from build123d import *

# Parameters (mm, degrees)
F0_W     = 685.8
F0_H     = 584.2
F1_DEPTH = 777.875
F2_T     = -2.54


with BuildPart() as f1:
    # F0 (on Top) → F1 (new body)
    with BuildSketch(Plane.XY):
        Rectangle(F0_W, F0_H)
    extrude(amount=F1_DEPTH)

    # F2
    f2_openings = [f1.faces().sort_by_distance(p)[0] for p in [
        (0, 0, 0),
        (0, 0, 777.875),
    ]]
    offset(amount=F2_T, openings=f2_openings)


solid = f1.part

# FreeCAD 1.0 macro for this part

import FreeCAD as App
import Part
import Sketcher
from FreeCAD import Vector
Q = App.Units.Quantity


def faces_at(feature, points):
    """Names of the faces that lie closest to the given points."""
    faces = feature.Shape.Faces
    near = lambda p: min(range(len(faces)), key=lambda i: faces[i].distToShape(Part.Vertex(*p))[0])
    return sorted({f"Face{near(p) + 1}" for p in points})

doc = App.newDocument("Part")
body = doc.addObject("PartDesign::Body", "Body")

sketch1 = body.newObject("Sketcher::SketchObject", "Sketch")
sketch1.AttachmentSupport = (doc.getObject("XY_Plane"), [""])
sketch1.MapMode = "FlatFace"
sketch1.addGeometry(Part.LineSegment(Vector(-343, 292, 0), Vector(-343, -292, 0)), False)
sketch1.addGeometry(Part.LineSegment(Vector(-343, -292, 0), Vector(343, -292, 0)), False)
sketch1.addGeometry(Part.LineSegment(Vector(343, -292, 0), Vector(343, 292, 0)), False)
sketch1.addGeometry(Part.LineSegment(Vector(343, 292, 0), Vector(-343, 292, 0)), False)
sketch1.addConstraint(Sketcher.Constraint("Coincident", 0, 2, 1, 1))
sketch1.addConstraint(Sketcher.Constraint("Coincident", 1, 2, 2, 1))
sketch1.addConstraint(Sketcher.Constraint("Coincident", 2, 2, 3, 1))
sketch1.addConstraint(Sketcher.Constraint("Coincident", 3, 2, 0, 1))
sketch1.addConstraint(Sketcher.Constraint("Vertical", 0))
sketch1.addConstraint(Sketcher.Constraint("Horizontal", 1))
sketch1.addConstraint(Sketcher.Constraint("Vertical", 2))
sketch1.addConstraint(Sketcher.Constraint("Horizontal", 3))
sketch1.addConstraint(Sketcher.Constraint("Symmetric", 0, 2, 2, 2, -1, 1))
sketch1.addConstraint(Sketcher.Constraint("DistanceX", 1, 1, 1, 2, Q("27 in")))
sketch1.addConstraint(Sketcher.Constraint("DistanceY", 0, 2, 0, 1, Q("23 in")))
pad1 = body.newObject("PartDesign::Pad", "Pad")
pad1.Profile = sketch1
pad1.Length = Q("30.625 in")
doc.recompute()

thickness = body.newObject("PartDesign::Thickness", "Thickness")
thickness.Base = (pad1, faces_at(pad1, [(0, 0, 0), (0, 0, 777.875)]))
thickness.Value = Q("0.1 in")
thickness.Reversed = True
thickness.Join = "Arc"

doc.recompute()
